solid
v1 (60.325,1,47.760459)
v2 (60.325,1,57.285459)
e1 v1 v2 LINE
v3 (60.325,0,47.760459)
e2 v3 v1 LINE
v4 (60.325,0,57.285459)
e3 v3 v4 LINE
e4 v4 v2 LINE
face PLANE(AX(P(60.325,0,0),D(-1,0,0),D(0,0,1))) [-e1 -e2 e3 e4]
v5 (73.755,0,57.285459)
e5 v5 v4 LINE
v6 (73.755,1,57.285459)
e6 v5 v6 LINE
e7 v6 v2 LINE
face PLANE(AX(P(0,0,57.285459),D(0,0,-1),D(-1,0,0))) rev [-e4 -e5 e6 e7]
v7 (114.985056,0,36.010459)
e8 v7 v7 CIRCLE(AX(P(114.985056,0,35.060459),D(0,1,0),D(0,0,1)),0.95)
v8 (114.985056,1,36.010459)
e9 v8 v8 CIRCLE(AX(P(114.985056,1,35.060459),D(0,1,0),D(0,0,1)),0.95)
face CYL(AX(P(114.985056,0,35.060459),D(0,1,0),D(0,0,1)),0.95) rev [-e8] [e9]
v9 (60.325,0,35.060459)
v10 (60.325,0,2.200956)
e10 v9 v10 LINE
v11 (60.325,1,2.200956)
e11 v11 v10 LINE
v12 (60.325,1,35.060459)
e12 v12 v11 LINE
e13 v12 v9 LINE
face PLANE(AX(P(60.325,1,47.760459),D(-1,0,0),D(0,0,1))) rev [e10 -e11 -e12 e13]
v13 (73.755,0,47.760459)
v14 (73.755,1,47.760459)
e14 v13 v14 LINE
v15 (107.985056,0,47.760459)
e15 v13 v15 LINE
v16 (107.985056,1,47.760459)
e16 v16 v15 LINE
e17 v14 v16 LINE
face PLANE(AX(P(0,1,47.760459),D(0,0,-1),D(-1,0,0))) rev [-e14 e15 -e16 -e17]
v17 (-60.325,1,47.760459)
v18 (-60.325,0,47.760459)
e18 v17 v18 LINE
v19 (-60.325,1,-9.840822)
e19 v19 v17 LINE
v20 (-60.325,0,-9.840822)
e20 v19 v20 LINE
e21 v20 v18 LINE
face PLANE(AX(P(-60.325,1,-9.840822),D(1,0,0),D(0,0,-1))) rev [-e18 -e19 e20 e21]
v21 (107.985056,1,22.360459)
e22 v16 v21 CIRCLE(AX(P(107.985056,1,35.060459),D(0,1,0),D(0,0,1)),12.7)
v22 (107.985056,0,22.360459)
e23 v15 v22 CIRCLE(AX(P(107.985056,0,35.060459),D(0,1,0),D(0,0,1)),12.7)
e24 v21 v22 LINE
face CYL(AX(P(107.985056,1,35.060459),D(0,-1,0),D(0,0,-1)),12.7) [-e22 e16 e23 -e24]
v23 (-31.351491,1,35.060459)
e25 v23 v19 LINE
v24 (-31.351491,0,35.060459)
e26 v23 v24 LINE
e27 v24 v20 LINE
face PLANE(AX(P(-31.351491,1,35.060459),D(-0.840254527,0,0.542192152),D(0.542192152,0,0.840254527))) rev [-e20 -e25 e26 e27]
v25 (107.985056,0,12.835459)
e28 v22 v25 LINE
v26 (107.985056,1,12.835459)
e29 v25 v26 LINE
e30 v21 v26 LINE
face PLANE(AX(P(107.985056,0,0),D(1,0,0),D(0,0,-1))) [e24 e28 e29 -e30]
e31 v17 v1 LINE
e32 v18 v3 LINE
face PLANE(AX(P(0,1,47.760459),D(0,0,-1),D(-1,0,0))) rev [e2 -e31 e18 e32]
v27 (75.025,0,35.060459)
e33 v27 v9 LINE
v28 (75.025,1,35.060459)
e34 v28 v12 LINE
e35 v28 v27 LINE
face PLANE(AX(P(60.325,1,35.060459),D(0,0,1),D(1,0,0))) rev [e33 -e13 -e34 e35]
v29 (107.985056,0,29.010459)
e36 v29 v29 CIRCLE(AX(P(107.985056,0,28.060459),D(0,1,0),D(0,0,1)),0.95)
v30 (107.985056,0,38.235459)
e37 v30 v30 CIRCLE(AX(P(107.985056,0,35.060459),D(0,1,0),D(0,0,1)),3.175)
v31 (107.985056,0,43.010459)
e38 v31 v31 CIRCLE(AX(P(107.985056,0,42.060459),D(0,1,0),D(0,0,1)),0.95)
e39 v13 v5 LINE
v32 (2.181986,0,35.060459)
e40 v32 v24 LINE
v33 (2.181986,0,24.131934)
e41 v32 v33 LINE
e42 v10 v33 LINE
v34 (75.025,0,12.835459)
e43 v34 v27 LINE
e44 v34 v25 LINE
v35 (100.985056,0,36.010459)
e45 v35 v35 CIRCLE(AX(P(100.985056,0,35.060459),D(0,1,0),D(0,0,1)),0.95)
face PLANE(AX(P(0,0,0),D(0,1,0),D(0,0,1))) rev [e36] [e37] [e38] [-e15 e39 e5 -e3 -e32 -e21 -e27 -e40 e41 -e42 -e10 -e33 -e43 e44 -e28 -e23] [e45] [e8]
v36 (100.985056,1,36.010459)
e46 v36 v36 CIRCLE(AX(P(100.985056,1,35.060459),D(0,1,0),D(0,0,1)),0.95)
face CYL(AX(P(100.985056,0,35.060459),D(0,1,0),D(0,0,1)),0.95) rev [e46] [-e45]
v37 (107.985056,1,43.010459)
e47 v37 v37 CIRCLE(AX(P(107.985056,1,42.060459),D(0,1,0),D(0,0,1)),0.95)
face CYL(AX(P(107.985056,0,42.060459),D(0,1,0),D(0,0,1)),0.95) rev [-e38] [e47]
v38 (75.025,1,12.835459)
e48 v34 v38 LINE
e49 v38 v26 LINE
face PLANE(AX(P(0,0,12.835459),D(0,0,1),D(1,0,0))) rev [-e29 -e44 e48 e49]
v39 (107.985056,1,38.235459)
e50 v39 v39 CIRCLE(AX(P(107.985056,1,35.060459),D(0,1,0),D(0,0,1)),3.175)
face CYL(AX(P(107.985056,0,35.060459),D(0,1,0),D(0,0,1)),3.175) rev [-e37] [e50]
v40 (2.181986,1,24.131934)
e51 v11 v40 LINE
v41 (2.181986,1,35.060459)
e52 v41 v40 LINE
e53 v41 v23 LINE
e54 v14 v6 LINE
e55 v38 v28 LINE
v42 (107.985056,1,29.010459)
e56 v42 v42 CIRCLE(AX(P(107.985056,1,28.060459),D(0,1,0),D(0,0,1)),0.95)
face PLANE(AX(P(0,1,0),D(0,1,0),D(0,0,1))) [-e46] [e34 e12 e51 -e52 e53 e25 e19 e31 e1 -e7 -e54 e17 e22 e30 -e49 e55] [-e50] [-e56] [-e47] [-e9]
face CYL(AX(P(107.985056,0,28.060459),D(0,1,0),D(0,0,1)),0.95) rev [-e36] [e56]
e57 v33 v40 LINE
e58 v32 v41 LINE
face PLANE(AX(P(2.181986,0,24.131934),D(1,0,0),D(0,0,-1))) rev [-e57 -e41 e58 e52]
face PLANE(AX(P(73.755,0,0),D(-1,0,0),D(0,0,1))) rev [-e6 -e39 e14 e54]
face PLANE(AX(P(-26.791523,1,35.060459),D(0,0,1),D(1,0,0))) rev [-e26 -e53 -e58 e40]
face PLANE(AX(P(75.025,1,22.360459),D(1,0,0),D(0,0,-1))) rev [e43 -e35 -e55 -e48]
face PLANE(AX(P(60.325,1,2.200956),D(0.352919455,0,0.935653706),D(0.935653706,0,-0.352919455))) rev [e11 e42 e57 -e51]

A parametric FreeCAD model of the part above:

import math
import FreeCAD as App
import Part
import Sketcher

V = App.Vector
Q = App.Units.Quantity

doc = App.newDocument("Part")
body = doc.addObject("PartDesign::Body", "Body")

# Sketch on XZ plane
sketch1 = body.newObject("Sketcher::SketchObject", "Sketch")
sketch1.AttachmentSupport = (doc.getObject("XZ_Plane"), [""])
sketch1.MapMode = "FlatFace"
sketch1.addGeometry([
    Part.LineSegment(V(-31.4, 35.1, 0), V(-60.3, -9.8, 0)),  # 0
    Part.LineSegment(V(-60.3, -9.8, 0), V(-60.3, 47.8, 0)),  # 1
    Part.LineSegment(V(-60.3, 47.8, 0), V(60.3, 47.8, 0)),  # 2
    Part.LineSegment(V(60.3, 47.8, 0), V(60.3, 2.2, 0)),  # 3
    Part.LineSegment(V(60.3, 2.2, 0), V(-26.8, 35.1, 0)),  # 4
    Part.LineSegment(V(-26.8, 35.1, 0), V(-31.4, 35.1, 0)),  # 5
], False)
sketch1.addConstraint([
    Sketcher.Constraint("Coincident", 0, 2, 1, 1),
    Sketcher.Constraint("Coincident", 1, 2, 2, 1),
    Sketcher.Constraint("Coincident", 2, 2, 3, 1),
    Sketcher.Constraint("Coincident", 3, 2, 4, 1),
    Sketcher.Constraint("Coincident", 4, 2, 5, 1),
    Sketcher.Constraint("Coincident", 5, 2, 0, 1),
    Sketcher.Constraint("Vertical", 1),
    Sketcher.Constraint("Horizontal", 2),
    Sketcher.Constraint("Vertical", 3),
    Sketcher.Constraint("Horizontal", 5),
    Sketcher.Constraint("DistanceX", 2, 1, 2, 2, Q("4.75 in")),
    Sketcher.Constraint("DistanceY", 4, 2, 1, 2, Q("0.5 in")),
    Sketcher.Constraint("DistanceX", 0, 2, -1, 1, Q("2.375 in")),
    Sketcher.Constraint("DistanceX", 5, 2, 5, 1, 4.559968),
    Sketcher.Constraint("DistanceY", 1, 1, 1, 2, 57.601281),
    Sketcher.Constraint("DistanceY", 3, 2, 3, 1, 45.559503),
    Sketcher.Constraint("DistanceY", 0, 2, -1, 1, 9.840822),
    Sketcher.Constraint("DistanceX", 5, 2, -1, 1, 31.351491),
])
pad1 = body.newObject("PartDesign::Pad", "Pad")
pad1.Profile = sketch1
pad1.Length = 1
pad1.Reversed = True

# Sketch on XZ plane
sketch2 = body.newObject("Sketcher::SketchObject", "Sketch001")
sketch2.AttachmentSupport = (doc.getObject("XZ_Plane"), [""])
sketch2.MapMode = "FlatFace"
sketch2.addGeometry([
    Part.LineSegment(V(60, 48, 0), V(108, 48, 0)),  # 0
    Part.ArcOfCircle(Part.Circle(V(108, 35, 0), V(0, 0, 1), 13), math.radians(-90), math.radians(90)),  # 1
    Part.LineSegment(V(108, 22, 0), V(75, 22, 0)),  # 2
    Part.LineSegment(V(75, 22, 0), V(75, 35, 0)),  # 3
    Part.LineSegment(V(75, 35, 0), V(60, 35, 0)),  # 4
    Part.LineSegment(V(60, 35, 0), V(60, 48, 0)),  # 5
], False)
sketch2.addConstraint([
    Sketcher.Constraint("Tangent", 0, 2, 1, 2),
    Sketcher.Constraint("Tangent", 1, 1, 2, 1),
    Sketcher.Constraint("Coincident", 2, 2, 3, 1),
    Sketcher.Constraint("Coincident", 3, 2, 4, 1),
    Sketcher.Constraint("Coincident", 4, 2, 5, 1),
    Sketcher.Constraint("Coincident", 5, 2, 0, 1),
    Sketcher.Constraint("Horizontal", 0),
    Sketcher.Constraint("Horizontal", 2),
    Sketcher.Constraint("Vertical", 3),
    Sketcher.Constraint("Horizontal", 4),
    Sketcher.Constraint("Vertical", 5),
    Sketcher.Constraint("Horizontal", 1, 3, 3, 2),
    Sketcher.Constraint("Radius", 1, Q("0.5 in")),
    Sketcher.Constraint("DistanceX", -1, 1, 4, 2, Q("2.375 in")),
    Sketcher.Constraint("DistanceX", 4, 2, 4, 1, 14.7),
    Sketcher.Constraint("DistanceX", 0, 1, 0, 2, 47.660056),
    Sketcher.Constraint("DistanceY", -1, 1, 1, 3, 35.060459),
])
pad2 = body.newObject("PartDesign::Pad", "Pad001")
pad2.Profile = sketch2
pad2.Length = 1
pad2.Reversed = True

# Sketch on XZ plane
sketch3 = body.newObject("Sketcher::SketchObject", "Sketch002")
sketch3.AttachmentSupport = (doc.getObject("XZ_Plane"), [""])
sketch3.MapMode = "FlatFace"
sketch3.AttachmentOffset = App.Placement(V(0, 0, -1), App.Rotation())
sketch3.addGeometry([
    Part.Circle(V(108, 35.1, 0), V(0, 0, 1), 3.2),  # 0
    Part.Circle(V(108, 42.1, 0), V(0, 0, 1), 1),  # 1
    Part.Circle(V(108, 28.1, 0), V(0, 0, 1), 1),  # 2
    Part.Circle(V(101, 35.1, 0), V(0, 0, 1), 1),  # 3
    Part.Circle(V(115, 35.1, 0), V(0, 0, 1), 1),  # 4
], False)
sketch3.addConstraint([
    Sketcher.Constraint("Equal", 1, 2),
    Sketcher.Constraint("Equal", 2, 3),
    Sketcher.Constraint("Equal", 3, 4),
    Sketcher.Constraint("Horizontal", 0, 3, 3, 3),
    Sketcher.Constraint("Horizontal", 3, 3, 4, 3),
    Sketcher.Constraint("Vertical", 0, 3, 1, 3),
    Sketcher.Constraint("Vertical", 1, 3, 2, 3),
    Sketcher.Constraint("Diameter", 0, Q("0.25 in")),
    Sketcher.Constraint("Diameter", 1, 1.9),
    Sketcher.Constraint("DistanceY", 0, 3, 1, 3, 7.0),
    Sketcher.Constraint("DistanceY", 2, 3, 0, 3, 7.0),
    Sketcher.Constraint("DistanceX", 3, 3, 0, 3, 7.0),
    Sketcher.Constraint("DistanceX", 0, 3, 4, 3, 7.0),
    Sketcher.Constraint("DistanceY", -1, 1, 0, 3, 35.060459),
    Sketcher.Constraint("DistanceX", -1, 1, 0, 3, 107.985056),
])
pocket1 = body.newObject("PartDesign::Pocket", "Pocket")
pocket1.Profile = sketch3
pocket1.Type = "ThroughAll"
pocket1.Midplane = True

# Sketch on XZ plane
sketch4 = body.newObject("Sketcher::SketchObject", "Sketch003")
sketch4.AttachmentSupport = (doc.getObject("XZ_Plane"), [""])
sketch4.MapMode = "FlatFace"
sketch4.AttachmentOffset = App.Placement(V(0, 0, -1), App.Rotation())
sketch4.addGeometry([
    Part.LineSegment(V(60, 48, 0), V(60, 57, 0)),  # 0
    Part.LineSegment(V(60, 57, 0), V(74, 57, 0)),  # 1
    Part.LineSegment(V(74, 57, 0), V(74, 48, 0)),  # 2
    Part.LineSegment(V(74, 48, 0), V(60, 48, 0)),  # 3
    Part.LineSegment(V(75, 13, 0), V(75, 22, 0)),  # 4
    Part.LineSegment(V(75, 22, 0), V(108, 22, 0)),  # 5
    Part.LineSegment(V(108, 22, 0), V(108, 13, 0)),  # 6
    Part.LineSegment(V(108, 13, 0), V(75, 13, 0)),  # 7
], False)
sketch4.addConstraint([
    Sketcher.Constraint("Coincident", 0, 2, 1, 1),
    Sketcher.Constraint("Coincident", 1, 2, 2, 1),
    Sketcher.Constraint("Coincident", 2, 2, 3, 1),
    Sketcher.Constraint("Coincident", 3, 2, 0, 1),
    Sketcher.Constraint("Coincident", 4, 2, 5, 1),
    Sketcher.Constraint("Coincident", 5, 2, 6, 1),
    Sketcher.Constraint("Coincident", 6, 2, 7, 1),
    Sketcher.Constraint("Coincident", 7, 2, 4, 1),
    Sketcher.Constraint("Vertical", 0),
    Sketcher.Constraint("Horizontal", 1),
    Sketcher.Constraint("Vertical", 2),
    Sketcher.Constraint("Horizontal", 3),
    Sketcher.Constraint("Vertical", 4),
    Sketcher.Constraint("Horizontal", 5),
    Sketcher.Constraint("Vertical", 6),
    Sketcher.Constraint("Horizontal", 7),
    Sketcher.Constraint("Equal", 2, 4),
    Sketcher.Constraint("DistanceY", 4, 2, 2, 2, Q("1 in")),
    Sketcher.Constraint("DistanceY", 0, 1, 0, 2, Q("0.375 in")),
    Sketcher.Constraint("DistanceX", 2, 2, 4, 2, Q("0.05 in")),
    Sketcher.Constraint("DistanceX", -1, 1, 0, 2, Q("2.375 in")),
    Sketcher.Constraint("DistanceX", 1, 1, 1, 2, 13.43),
    Sketcher.Constraint("DistanceX", 5, 1, 5, 2, 32.960056),
    Sketcher.Constraint("DistanceY", -1, 1, 0, 2, 57.285459),
])
pad3 = body.newObject("PartDesign::Pad", "Pad002")
pad3.Profile = sketch4
pad3.Length = 1

# Sketch on XZ plane
sketch5 = body.newObject("Sketcher::SketchObject", "Sketch004")
sketch5.AttachmentSupport = (doc.getObject("XZ_Plane"), [""])
sketch5.MapMode = "FlatFace"
sketch5.AttachmentOffset = App.Placement(V(0, 0, -1), App.Rotation())
sketch5.addGeometry([
    Part.LineSegment(V(2, 24, 0), V(-27, 35, 0)),
    Part.LineSegment(V(-27, 35, 0), V(2, 35, 0)),
    Part.LineSegment(V(2, 35, 0), V(2, 24, 0)),
], False)
sketch5.addConstraint([
    Sketcher.Constraint("Coincident", 0, 2, 1, 1),
    Sketcher.Constraint("Coincident", 1, 2, 2, 1),
    Sketcher.Constraint("Coincident", 2, 2, 0, 1),
    Sketcher.Constraint("Horizontal", 1),
    Sketcher.Constraint("Vertical", 2),
    Sketcher.Constraint("DistanceX", 1, 1, 1, 2, 28.973509),
    Sketcher.Constraint("Distance", 0, 30.96606),
    Sketcher.Constraint("DistanceY", -1, 1, 0, 2, 35.060459),
    Sketcher.Constraint("DistanceX", 0, 2, -1, 1, 26.791523),
])
pocket2 = body.newObject("PartDesign::Pocket", "Pocket001")
pocket2.Profile = sketch5
pocket2.Type = "ThroughAll"
pocket2.Midplane = True

doc.recompute()
